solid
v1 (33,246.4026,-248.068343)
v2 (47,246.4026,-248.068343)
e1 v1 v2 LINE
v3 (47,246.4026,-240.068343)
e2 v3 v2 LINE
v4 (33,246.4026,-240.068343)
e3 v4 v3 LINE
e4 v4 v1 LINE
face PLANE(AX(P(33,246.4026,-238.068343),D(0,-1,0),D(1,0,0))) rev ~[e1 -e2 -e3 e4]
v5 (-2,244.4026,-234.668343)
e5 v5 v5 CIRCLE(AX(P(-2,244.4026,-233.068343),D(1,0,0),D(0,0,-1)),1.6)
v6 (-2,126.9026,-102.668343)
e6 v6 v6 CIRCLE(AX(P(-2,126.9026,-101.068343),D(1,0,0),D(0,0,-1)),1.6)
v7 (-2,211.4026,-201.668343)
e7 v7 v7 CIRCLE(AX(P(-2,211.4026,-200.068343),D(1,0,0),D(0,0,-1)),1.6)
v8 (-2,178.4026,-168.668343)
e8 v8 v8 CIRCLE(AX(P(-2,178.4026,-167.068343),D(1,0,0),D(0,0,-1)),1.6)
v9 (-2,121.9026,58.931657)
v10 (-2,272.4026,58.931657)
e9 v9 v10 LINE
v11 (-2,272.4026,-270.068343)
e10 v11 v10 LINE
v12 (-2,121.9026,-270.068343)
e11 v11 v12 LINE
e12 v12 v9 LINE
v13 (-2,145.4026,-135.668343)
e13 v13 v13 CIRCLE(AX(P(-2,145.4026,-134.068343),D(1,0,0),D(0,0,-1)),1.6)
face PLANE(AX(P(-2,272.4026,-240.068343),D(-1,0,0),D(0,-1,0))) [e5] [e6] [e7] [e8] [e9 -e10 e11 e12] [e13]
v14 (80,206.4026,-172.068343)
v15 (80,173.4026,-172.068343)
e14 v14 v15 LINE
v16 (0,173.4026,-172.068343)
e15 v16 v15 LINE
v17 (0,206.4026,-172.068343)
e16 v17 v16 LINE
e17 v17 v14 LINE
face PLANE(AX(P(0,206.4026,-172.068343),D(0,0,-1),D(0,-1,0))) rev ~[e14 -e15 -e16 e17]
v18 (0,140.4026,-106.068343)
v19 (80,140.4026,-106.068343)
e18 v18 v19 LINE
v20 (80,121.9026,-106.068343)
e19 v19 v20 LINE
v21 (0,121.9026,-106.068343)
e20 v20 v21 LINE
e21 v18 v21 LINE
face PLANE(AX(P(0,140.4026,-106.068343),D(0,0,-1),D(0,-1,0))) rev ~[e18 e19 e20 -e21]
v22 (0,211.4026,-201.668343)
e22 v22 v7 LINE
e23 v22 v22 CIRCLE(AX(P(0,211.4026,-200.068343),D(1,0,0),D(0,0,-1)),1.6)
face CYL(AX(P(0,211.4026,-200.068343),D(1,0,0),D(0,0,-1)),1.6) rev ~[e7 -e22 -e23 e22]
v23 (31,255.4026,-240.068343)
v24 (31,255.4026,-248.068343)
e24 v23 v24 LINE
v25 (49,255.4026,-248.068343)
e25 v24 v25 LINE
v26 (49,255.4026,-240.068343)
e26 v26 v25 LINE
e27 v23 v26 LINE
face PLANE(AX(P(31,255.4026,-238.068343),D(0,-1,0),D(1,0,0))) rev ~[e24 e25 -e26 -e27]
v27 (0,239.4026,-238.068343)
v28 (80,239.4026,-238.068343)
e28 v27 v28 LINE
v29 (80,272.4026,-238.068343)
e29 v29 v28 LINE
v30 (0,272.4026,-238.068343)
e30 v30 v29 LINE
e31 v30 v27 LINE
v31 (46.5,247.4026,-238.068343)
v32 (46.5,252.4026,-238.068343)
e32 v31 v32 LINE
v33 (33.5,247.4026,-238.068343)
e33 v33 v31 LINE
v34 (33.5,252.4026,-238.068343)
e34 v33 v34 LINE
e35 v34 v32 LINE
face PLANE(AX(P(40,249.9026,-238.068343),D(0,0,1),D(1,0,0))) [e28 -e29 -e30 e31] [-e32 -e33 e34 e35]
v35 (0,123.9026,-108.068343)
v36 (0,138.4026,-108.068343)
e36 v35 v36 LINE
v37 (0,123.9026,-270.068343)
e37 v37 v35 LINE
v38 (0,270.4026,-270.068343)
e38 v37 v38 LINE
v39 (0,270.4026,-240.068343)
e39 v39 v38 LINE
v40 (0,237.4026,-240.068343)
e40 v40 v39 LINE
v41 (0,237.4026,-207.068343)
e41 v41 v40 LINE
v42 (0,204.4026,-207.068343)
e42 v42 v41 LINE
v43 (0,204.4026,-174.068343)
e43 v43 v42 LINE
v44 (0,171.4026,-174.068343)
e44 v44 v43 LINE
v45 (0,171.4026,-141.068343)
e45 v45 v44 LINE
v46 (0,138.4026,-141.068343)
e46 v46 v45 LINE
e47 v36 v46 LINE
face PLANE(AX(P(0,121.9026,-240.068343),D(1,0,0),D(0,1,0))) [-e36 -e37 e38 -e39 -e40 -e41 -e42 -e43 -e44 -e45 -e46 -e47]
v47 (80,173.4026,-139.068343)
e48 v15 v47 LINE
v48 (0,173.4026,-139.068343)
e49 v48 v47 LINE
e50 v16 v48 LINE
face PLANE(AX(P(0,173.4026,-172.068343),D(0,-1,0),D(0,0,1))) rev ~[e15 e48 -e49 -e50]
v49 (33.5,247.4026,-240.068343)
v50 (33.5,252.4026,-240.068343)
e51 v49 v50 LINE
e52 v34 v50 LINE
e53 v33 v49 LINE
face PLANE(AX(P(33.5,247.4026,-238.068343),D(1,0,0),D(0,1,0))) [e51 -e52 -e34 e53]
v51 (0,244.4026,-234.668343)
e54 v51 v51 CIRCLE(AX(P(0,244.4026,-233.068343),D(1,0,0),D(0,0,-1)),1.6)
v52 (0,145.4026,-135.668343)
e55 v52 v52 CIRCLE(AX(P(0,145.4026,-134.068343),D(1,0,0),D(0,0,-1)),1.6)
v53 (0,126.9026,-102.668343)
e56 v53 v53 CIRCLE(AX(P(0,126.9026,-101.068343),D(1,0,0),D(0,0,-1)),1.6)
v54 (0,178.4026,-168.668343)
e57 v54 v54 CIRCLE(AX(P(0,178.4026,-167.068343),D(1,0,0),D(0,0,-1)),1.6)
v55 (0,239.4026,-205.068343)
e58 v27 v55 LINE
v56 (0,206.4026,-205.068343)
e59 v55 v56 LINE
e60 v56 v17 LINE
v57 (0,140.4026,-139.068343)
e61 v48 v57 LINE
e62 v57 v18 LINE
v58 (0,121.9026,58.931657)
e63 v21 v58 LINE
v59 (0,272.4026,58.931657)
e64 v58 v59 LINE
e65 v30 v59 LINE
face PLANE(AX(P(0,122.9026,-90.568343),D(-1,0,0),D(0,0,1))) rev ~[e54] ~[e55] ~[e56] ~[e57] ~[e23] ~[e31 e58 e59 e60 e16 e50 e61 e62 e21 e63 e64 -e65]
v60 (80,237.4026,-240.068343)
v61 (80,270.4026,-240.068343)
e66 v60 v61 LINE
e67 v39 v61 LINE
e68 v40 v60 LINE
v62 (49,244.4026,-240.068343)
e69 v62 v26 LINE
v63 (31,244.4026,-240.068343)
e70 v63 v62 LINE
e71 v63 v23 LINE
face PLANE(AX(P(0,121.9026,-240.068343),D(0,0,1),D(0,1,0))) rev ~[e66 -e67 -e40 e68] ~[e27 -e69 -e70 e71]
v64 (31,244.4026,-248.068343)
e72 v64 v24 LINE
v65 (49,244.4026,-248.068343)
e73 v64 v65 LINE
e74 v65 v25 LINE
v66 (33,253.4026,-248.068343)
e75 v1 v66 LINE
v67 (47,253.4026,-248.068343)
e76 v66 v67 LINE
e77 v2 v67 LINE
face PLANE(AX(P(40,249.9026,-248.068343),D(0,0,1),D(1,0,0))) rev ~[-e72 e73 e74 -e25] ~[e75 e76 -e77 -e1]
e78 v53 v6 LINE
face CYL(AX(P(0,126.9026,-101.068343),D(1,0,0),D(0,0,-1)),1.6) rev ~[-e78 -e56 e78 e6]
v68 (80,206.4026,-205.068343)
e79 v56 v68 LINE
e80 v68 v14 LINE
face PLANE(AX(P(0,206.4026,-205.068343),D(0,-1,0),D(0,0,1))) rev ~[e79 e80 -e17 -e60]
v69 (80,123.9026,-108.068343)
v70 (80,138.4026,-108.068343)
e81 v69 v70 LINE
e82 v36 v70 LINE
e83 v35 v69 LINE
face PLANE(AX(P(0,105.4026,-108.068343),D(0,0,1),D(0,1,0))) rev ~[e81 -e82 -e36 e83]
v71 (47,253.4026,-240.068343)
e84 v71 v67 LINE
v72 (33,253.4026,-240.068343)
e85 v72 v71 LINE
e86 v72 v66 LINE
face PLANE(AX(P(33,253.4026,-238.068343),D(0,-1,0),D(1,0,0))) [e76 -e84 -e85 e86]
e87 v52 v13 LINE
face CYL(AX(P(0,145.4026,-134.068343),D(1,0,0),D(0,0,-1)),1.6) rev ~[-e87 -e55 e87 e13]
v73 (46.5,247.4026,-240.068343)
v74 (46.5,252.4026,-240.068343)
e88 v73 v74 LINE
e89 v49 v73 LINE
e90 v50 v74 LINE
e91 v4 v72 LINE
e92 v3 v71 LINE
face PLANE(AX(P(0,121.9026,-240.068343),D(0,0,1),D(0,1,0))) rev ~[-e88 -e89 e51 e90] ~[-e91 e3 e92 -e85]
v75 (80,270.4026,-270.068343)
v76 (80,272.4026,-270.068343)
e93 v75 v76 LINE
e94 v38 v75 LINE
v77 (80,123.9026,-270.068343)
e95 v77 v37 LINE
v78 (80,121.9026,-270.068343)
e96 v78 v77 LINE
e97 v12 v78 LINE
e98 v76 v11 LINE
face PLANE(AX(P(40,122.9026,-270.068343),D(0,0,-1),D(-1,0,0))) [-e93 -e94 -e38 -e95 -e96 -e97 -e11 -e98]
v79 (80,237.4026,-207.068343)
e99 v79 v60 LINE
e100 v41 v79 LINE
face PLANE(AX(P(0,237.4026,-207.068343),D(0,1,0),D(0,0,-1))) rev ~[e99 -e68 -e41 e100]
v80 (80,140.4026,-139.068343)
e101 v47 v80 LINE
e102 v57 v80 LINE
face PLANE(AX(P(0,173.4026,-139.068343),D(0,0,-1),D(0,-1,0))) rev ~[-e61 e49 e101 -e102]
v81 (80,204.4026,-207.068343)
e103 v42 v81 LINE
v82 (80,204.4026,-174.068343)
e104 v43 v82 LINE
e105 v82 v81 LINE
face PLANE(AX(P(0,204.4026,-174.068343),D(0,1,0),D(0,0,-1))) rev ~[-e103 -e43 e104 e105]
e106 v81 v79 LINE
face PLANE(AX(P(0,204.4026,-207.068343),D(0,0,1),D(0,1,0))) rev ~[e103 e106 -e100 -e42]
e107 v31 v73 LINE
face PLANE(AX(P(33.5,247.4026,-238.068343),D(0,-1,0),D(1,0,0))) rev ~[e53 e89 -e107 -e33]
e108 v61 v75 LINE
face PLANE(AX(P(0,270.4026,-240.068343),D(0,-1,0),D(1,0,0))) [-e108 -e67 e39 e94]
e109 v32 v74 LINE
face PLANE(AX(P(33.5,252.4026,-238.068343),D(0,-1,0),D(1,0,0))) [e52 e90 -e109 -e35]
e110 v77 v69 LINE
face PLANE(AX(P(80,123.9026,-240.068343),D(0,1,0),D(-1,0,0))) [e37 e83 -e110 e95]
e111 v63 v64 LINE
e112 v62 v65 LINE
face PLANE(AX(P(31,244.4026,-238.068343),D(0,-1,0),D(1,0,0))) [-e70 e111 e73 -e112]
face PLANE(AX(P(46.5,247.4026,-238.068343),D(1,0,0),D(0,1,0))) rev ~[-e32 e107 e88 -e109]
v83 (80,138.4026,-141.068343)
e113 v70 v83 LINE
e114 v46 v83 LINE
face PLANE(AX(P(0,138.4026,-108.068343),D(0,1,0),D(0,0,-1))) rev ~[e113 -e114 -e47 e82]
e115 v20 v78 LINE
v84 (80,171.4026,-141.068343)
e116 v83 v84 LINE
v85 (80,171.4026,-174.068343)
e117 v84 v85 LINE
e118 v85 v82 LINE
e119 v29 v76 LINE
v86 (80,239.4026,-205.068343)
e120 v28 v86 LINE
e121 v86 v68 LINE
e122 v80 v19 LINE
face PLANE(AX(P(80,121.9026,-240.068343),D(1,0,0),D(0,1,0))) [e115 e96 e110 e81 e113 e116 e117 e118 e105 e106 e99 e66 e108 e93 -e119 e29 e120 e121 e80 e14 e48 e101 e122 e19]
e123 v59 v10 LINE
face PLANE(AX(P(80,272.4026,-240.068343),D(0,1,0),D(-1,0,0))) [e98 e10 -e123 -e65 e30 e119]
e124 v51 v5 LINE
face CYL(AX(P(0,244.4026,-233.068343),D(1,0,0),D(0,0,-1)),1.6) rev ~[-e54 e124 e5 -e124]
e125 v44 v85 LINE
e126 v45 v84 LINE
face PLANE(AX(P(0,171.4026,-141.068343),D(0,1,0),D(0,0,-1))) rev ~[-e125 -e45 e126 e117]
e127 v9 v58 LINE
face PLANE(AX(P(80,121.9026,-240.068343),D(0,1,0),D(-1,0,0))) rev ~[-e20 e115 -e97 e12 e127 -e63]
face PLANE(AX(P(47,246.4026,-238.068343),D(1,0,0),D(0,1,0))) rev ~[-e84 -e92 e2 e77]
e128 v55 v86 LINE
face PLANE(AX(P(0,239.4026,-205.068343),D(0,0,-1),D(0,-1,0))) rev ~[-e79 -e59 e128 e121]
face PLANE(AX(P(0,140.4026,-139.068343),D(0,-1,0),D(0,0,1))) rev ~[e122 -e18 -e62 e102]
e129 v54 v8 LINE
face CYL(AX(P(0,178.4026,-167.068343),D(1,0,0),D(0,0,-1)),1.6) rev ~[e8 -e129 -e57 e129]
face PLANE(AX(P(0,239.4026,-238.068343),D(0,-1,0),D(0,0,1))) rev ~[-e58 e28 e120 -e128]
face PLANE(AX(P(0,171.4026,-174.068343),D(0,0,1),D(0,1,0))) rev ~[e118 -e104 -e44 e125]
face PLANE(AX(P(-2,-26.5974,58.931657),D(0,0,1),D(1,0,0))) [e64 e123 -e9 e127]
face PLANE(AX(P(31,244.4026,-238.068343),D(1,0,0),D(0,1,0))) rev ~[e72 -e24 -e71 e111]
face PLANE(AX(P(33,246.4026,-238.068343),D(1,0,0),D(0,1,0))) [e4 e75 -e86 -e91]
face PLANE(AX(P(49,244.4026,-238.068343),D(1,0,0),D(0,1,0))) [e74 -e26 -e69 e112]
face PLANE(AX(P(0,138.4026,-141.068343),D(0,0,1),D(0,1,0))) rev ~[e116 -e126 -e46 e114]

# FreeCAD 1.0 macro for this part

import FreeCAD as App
import Part
import Sketcher
from FreeCAD import Vector

doc = App.newDocument("Part")
body = doc.addObject("PartDesign::Body", "Body")

# Sketch on YZ plane
sketch1 = body.newObject("Sketcher::SketchObject", "Sketch")
sketch1.AttachmentSupport = (doc.getObject("YZ_Plane"), [""])
sketch1.MapMode = "FlatFace"
sketch1.addGeometry(Part.LineSegment(Vector(-26.6, 23.9, 0), Vector(6.4, 23.9, 0)), False)
sketch1.addGeometry(Part.LineSegment(Vector(6.4, 23.9, 0), Vector(6.4, -9.1, 0)), False)
sketch1.addGeometry(Part.LineSegment(Vector(6.4, -9.1, 0), Vector(39.4, -9.1, 0)), False)
sketch1.addGeometry(Part.LineSegment(Vector(39.4, -9.1, 0), Vector(39.4, -42.1, 0)), False)
sketch1.addGeometry(Part.LineSegment(Vector(39.4, -42.1, 0), Vector(72.4, -42.1, 0)), False)
sketch1.addGeometry(Part.LineSegment(Vector(72.4, -42.1, 0), Vector(72.4, -75.1, 0)), False)
sketch1.addGeometry(Part.LineSegment(Vector(72.4, -75.1, 0), Vector(105.4, -75.1, 0)), False)
sketch1.addGeometry(Part.LineSegment(Vector(105.4, -75.1, 0), Vector(105.4, -108.1, 0)), False)
sketch1.addGeometry(Part.LineSegment(Vector(105.4, -108.1, 0), Vector(138.4, -108.1, 0)), False)
sketch1.addGeometry(Part.LineSegment(Vector(138.4, -108.1, 0), Vector(138.4, -141.1, 0)), False)
sketch1.addGeometry(Part.LineSegment(Vector(138.4, -141.1, 0), Vector(171.4, -141.1, 0)), False)
sketch1.addGeometry(Part.LineSegment(Vector(171.4, -141.1, 0), Vector(171.4, -174.1, 0)), False)
sketch1.addGeometry(Part.LineSegment(Vector(171.4, -174.1, 0), Vector(204.4, -174.1, 0)), False)
sketch1.addGeometry(Part.LineSegment(Vector(204.4, -174.1, 0), Vector(204.4, -207.1, 0)), False)
sketch1.addGeometry(Part.LineSegment(Vector(204.4, -207.1, 0), Vector(237.4, -207.1, 0)), False)
sketch1.addGeometry(Part.LineSegment(Vector(237.4, -207.1, 0), Vector(237.4, -240.1, 0)), False)
sketch1.addGeometry(Part.LineSegment(Vector(237.4, -240.1, 0), Vector(272.4, -240.1, 0)), False)
sketch1.addGeometry(Part.LineSegment(Vector(272.4, -240.1, 0), Vector(272.4, -238.1, 0)), False)
sketch1.addGeometry(Part.LineSegment(Vector(272.4, -238.1, 0), Vector(239.4, -238.1, 0)), False)
sketch1.addGeometry(Part.LineSegment(Vector(239.4, -238.1, 0), Vector(239.4, -205.1, 0)), False)
sketch1.addGeometry(Part.LineSegment(Vector(239.4, -205.1, 0), Vector(206.4, -205.1, 0)), False)
sketch1.addGeometry(Part.LineSegment(Vector(206.4, -205.1, 0), Vector(206.4, -172.1, 0)), False)
sketch1.addGeometry(Part.LineSegment(Vector(206.4, -172.1, 0), Vector(173.4, -172.1, 0)), False)
sketch1.addGeometry(Part.LineSegment(Vector(173.4, -172.1, 0), Vector(173.4, -139.1, 0)), False)
sketch1.addGeometry(Part.LineSegment(Vector(173.4, -139.1, 0), Vector(140.4, -139.1, 0)), False)
sketch1.addGeometry(Part.LineSegment(Vector(140.4, -139.1, 0), Vector(140.4, -106.1, 0)), False)
sketch1.addGeometry(Part.LineSegment(Vector(140.4, -106.1, 0), Vector(107.4, -106.1, 0)), False)
sketch1.addGeometry(Part.LineSegment(Vector(107.4, -106.1, 0), Vector(107.4, -73.1, 0)), False)
sketch1.addGeometry(Part.LineSegment(Vector(107.4, -73.1, 0), Vector(74.4, -73.1, 0)), False)
sketch1.addGeometry(Part.LineSegment(Vector(74.4, -73.1, 0), Vector(74.4, -40.1, 0)), False)
sketch1.addGeometry(Part.LineSegment(Vector(74.4, -40.1, 0), Vector(41.4, -40.1, 0)), False)
sketch1.addGeometry(Part.LineSegment(Vector(41.4, -40.1, 0), Vector(41.4, -7.1, 0)), False)
sketch1.addGeometry(Part.LineSegment(Vector(41.4, -7.1, 0), Vector(8.4, -7.1, 0)), False)
sketch1.addGeometry(Part.LineSegment(Vector(8.4, -7.1, 0), Vector(8.4, 25.9, 0)), False)
sketch1.addGeometry(Part.LineSegment(Vector(8.4, 25.9, 0), Vector(-24.6, 25.9, 0)), False)
sketch1.addGeometry(Part.LineSegment(Vector(-24.6, 25.9, 0), Vector(-24.6, 58.9, 0)), False)
sketch1.addGeometry(Part.LineSegment(Vector(-24.6, 58.9, 0), Vector(-26.6, 58.9, 0)), False)
sketch1.addGeometry(Part.LineSegment(Vector(-26.6, 58.9, 0), Vector(-26.6, 23.9, 0)), False)
sketch1.addConstraint(Sketcher.Constraint("Coincident", 0, 2, 1, 1))
sketch1.addConstraint(Sketcher.Constraint("Coincident", 1, 2, 2, 1))
sketch1.addConstraint(Sketcher.Constraint("Coincident", 2, 2, 3, 1))
sketch1.addConstraint(Sketcher.Constraint("Coincident", 3, 2, 4, 1))
sketch1.addConstraint(Sketcher.Constraint("Coincident", 4, 2, 5, 1))
sketch1.addConstraint(Sketcher.Constraint("Coincident", 5, 2, 6, 1))
sketch1.addConstraint(Sketcher.Constraint("Coincident", 6, 2, 7, 1))
sketch1.addConstraint(Sketcher.Constraint("Coincident", 7, 2, 8, 1))
sketch1.addConstraint(Sketcher.Constraint("Coincident", 8, 2, 9, 1))
sketch1.addConstraint(Sketcher.Constraint("Coincident", 9, 2, 10, 1))
sketch1.addConstraint(Sketcher.Constraint("Coincident", 10, 2, 11, 1))
sketch1.addConstraint(Sketcher.Constraint("Coincident", 11, 2, 12, 1))
sketch1.addConstraint(Sketcher.Constraint("Coincident", 12, 2, 13, 1))
sketch1.addConstraint(Sketcher.Constraint("Coincident", 13, 2, 14, 1))
sketch1.addConstraint(Sketcher.Constraint("Coincident", 14, 2, 15, 1))
sketch1.addConstraint(Sketcher.Constraint("Coincident", 15, 2, 16, 1))
sketch1.addConstraint(Sketcher.Constraint("Coincident", 16, 2, 17, 1))
sketch1.addConstraint(Sketcher.Constraint("Coincident", 17, 2, 18, 1))
sketch1.addConstraint(Sketcher.Constraint("Coincident", 18, 2, 19, 1))
sketch1.addConstraint(Sketcher.Constraint("Coincident", 19, 2, 20, 1))
sketch1.addConstraint(Sketcher.Constraint("Coincident", 20, 2, 21, 1))
sketch1.addConstraint(Sketcher.Constraint("Coincident", 21, 2, 22, 1))
sketch1.addConstraint(Sketcher.Constraint("Coincident", 22, 2, 23, 1))
sketch1.addConstraint(Sketcher.Constraint("Coincident", 23, 2, 24, 1))
sketch1.addConstraint(Sketcher.Constraint("Coincident", 24, 2, 25, 1))
sketch1.addConstraint(Sketcher.Constraint("Coincident", 25, 2, 26, 1))
sketch1.addConstraint(Sketcher.Constraint("Coincident", 26, 2, 27, 1))
sketch1.addConstraint(Sketcher.Constraint("Coincident", 27, 2, 28, 1))
sketch1.addConstraint(Sketcher.Constraint("Coincident", 28, 2, 29, 1))
sketch1.addConstraint(Sketcher.Constraint("Coincident", 29, 2, 30, 1))
sketch1.addConstraint(Sketcher.Constraint("Coincident", 30, 2, 31, 1))
sketch1.addConstraint(Sketcher.Constraint("Coincident", 31, 2, 32, 1))
sketch1.addConstraint(Sketcher.Constraint("Coincident", 32, 2, 33, 1))
sketch1.addConstraint(Sketcher.Constraint("Coincident", 33, 2, 34, 1))
sketch1.addConstraint(Sketcher.Constraint("Coincident", 34, 2, 35, 1))
sketch1.addConstraint(Sketcher.Constraint("Coincident", 35, 2, 36, 1))
sketch1.addConstraint(Sketcher.Constraint("Coincident", 36, 2, 37, 1))
sketch1.addConstraint(Sketcher.Constraint("Coincident", 37, 2, 0, 1))
sketch1.addConstraint(Sketcher.Constraint("Horizontal", 0))
sketch1.addConstraint(Sketcher.Constraint("Vertical", 1))
sketch1.addConstraint(Sketcher.Constraint("Horizontal", 2))
sketch1.addConstraint(Sketcher.Constraint("Vertical", 3))
sketch1.addConstraint(Sketcher.Constraint("Horizontal", 4))
sketch1.addConstraint(Sketcher.Constraint("Vertical", 5))
sketch1.addConstraint(Sketcher.Constraint("Horizontal", 6))
sketch1.addConstraint(Sketcher.Constraint("Vertical", 7))
sketch1.addConstraint(Sketcher.Constraint("Horizontal", 8))
sketch1.addConstraint(Sketcher.Constraint("Vertical", 9))
sketch1.addConstraint(Sketcher.Constraint("Horizontal", 10))
sketch1.addConstraint(Sketcher.Constraint("Vertical", 11))
sketch1.addConstraint(Sketcher.Constraint("Horizontal", 12))
sketch1.addConstraint(Sketcher.Constraint("Vertical", 13))
sketch1.addConstraint(Sketcher.Constraint("Horizontal", 14))
sketch1.addConstraint(Sketcher.Constraint("Vertical", 15))
sketch1.addConstraint(Sketcher.Constraint("Horizontal", 16))
sketch1.addConstraint(Sketcher.Constraint("Vertical", 17))
sketch1.addConstraint(Sketcher.Constraint("Horizontal", 18))
sketch1.addConstraint(Sketcher.Constraint("Vertical", 19))
sketch1.addConstraint(Sketcher.Constraint("Horizontal", 20))
sketch1.addConstraint(Sketcher.Constraint("Vertical", 21))
sketch1.addConstraint(Sketcher.Constraint("Horizontal", 22))
sketch1.addConstraint(Sketcher.Constraint("Vertical", 23))
sketch1.addConstraint(Sketcher.Constraint("Horizontal", 24))
sketch1.addConstraint(Sketcher.Constraint("Vertical", 25))
sketch1.addConstraint(Sketcher.Constraint("Horizontal", 26))
sketch1.addConstraint(Sketcher.Constraint("Vertical", 27))
sketch1.addConstraint(Sketcher.Constraint("Horizontal", 28))
sketch1.addConstraint(Sketcher.Constraint("Vertical", 29))
sketch1.addConstraint(Sketcher.Constraint("Horizontal", 30))
sketch1.addConstraint(Sketcher.Constraint("Vertical", 31))
sketch1.addConstraint(Sketcher.Constraint("Horizontal", 32))
sketch1.addConstraint(Sketcher.Constraint("Vertical", 33))
sketch1.addConstraint(Sketcher.Constraint("Horizontal", 34))
sketch1.addConstraint(Sketcher.Constraint("Vertical", 35))
sketch1.addConstraint(Sketcher.Constraint("Horizontal", 36))
sketch1.addConstraint(Sketcher.Constraint("Vertical", 37))
sketch1.addConstraint(Sketcher.Constraint("Equal", 0, 2))
sketch1.addConstraint(Sketcher.Constraint("Equal", 2, 4))
sketch1.addConstraint(Sketcher.Constraint("Equal", 4, 6))
sketch1.addConstraint(Sketcher.Constraint("Equal", 6, 8))
sketch1.addConstraint(Sketcher.Constraint("Equal", 8, 10))
sketch1.addConstraint(Sketcher.Constraint("Equal", 10, 12))
sketch1.addConstraint(Sketcher.Constraint("Equal", 12, 14))
sketch1.addConstraint(Sketcher.Constraint("Equal", 14, 18))
sketch1.addConstraint(Sketcher.Constraint("Equal", 18, 20))
sketch1.addConstraint(Sketcher.Constraint("Equal", 20, 22))
sketch1.addConstraint(Sketcher.Constraint("Equal", 22, 24))
sketch1.addConstraint(Sketcher.Constraint("Equal", 24, 26))
sketch1.addConstraint(Sketcher.Constraint("Equal", 26, 28))
sketch1.addConstraint(Sketcher.Constraint("Equal", 28, 30))
sketch1.addConstraint(Sketcher.Constraint("Equal", 30, 32))
sketch1.addConstraint(Sketcher.Constraint("Equal", 32, 34))
sketch1.addConstraint(Sketcher.Constraint("Equal", 34, 1))
sketch1.addConstraint(Sketcher.Constraint("Equal", 1, 3))
sketch1.addConstraint(Sketcher.Constraint("Equal", 3, 5))
sketch1.addConstraint(Sketcher.Constraint("Equal", 5, 7))
sketch1.addConstraint(Sketcher.Constraint("Equal", 7, 9))
sketch1.addConstraint(Sketcher.Constraint("Equal", 9, 11))
sketch1.addConstraint(Sketcher.Constraint("Equal", 11, 13))
sketch1.addConstraint(Sketcher.Constraint("Equal", 13, 15))
sketch1.addConstraint(Sketcher.Constraint("Equal", 36, 17))
sketch1.addConstraint(Sketcher.Constraint("Equal", 15, 19))
sketch1.addConstraint(Sketcher.Constraint("Equal", 19, 21))
sketch1.addConstraint(Sketcher.Constraint("Equal", 21, 23))
sketch1.addConstraint(Sketcher.Constraint("Equal", 23, 25))
sketch1.addConstraint(Sketcher.Constraint("Equal", 25, 27))
sketch1.addConstraint(Sketcher.Constraint("Equal", 27, 29))
sketch1.addConstraint(Sketcher.Constraint("Equal", 29, 31))
sketch1.addConstraint(Sketcher.Constraint("Equal", 31, 33))
sketch1.addConstraint(Sketcher.Constraint("Equal", 33, 35))
sketch1.addConstraint(Sketcher.Constraint("DistanceX", 0, 1, 0, 2, 33.0))
sketch1.addConstraint(Sketcher.Constraint("DistanceX", 16, 1, 16, 2, 35.0))
sketch1.addConstraint(Sketcher.Constraint("DistanceX", -1, 1, 0, 2, 6.4026))
sketch1.addConstraint(Sketcher.Constraint("DistanceY", -1, 1, 0, 2, 23.931657))
pad1 = body.newObject("PartDesign::Pad", "Pad")
pad1.Profile = sketch1
pad1.Length = 80

# Sketch on YZ plane
sketch2 = body.newObject("Sketcher::SketchObject", "Sketch001")
sketch2.AttachmentSupport = (doc.getObject("YZ_Plane"), [""])
sketch2.MapMode = "FlatFace"
sketch2.addGeometry(Part.LineSegment(Vector(272, -240, 0), Vector(-27, -240, 0)), False)
sketch2.addGeometry(Part.LineSegment(Vector(-27, -240, 0), Vector(-27, 59, 0)), False)
sketch2.addGeometry(Part.LineSegment(Vector(-27, 59, 0), Vector(272, 59, 0)), False)
sketch2.addGeometry(Part.LineSegment(Vector(272, 59, 0), Vector(272, -240, 0)), False)
sketch2.addConstraint(Sketcher.Constraint("Coincident", 0, 2, 1, 1))
sketch2.addConstraint(Sketcher.Constraint("Coincident", 1, 2, 2, 1))
sketch2.addConstraint(Sketcher.Constraint("Coincident", 2, 2, 3, 1))
sketch2.addConstraint(Sketcher.Constraint("Coincident", 3, 2, 0, 1))
sketch2.addConstraint(Sketcher.Constraint("Horizontal", 0))
sketch2.addConstraint(Sketcher.Constraint("Vertical", 1))
sketch2.addConstraint(Sketcher.Constraint("Horizontal", 2))
sketch2.addConstraint(Sketcher.Constraint("Vertical", 3))
sketch2.addConstraint(Sketcher.Constraint("Equal", 2, 1))
sketch2.addConstraint(Sketcher.Constraint("DistanceX", 0, 2, 0, 1, 299.0))
sketch2.addConstraint(Sketcher.Constraint("DistanceX", 0, 2, -1, 1, 26.5974))
sketch2.addConstraint(Sketcher.Constraint("DistanceY", 0, 2, -1, 1, 240.068343))
pad2 = body.newObject("PartDesign::Pad", "Pad001")
pad2.Profile = sketch2
pad2.Length = 2
pad2.Reversed = True

# Sketch on XZ plane
sketch3 = body.newObject("Sketcher::SketchObject", "Sketch002")
sketch3.AttachmentSupport = (doc.getObject("XZ_Plane"), [""])
sketch3.MapMode = "FlatFace"
sketch3.AttachmentOffset = App.Placement(Vector(0, 0, 26.5974), App.Rotation())
sketch3.addGeometry(Part.LineSegment(Vector(-2, 59, 0), Vector(-2, -240, 0)), False)
sketch3.addGeometry(Part.LineSegment(Vector(-2, -240, 0), Vector(80, -240, 0)), False)
sketch3.addGeometry(Part.LineSegment(Vector(80, -240, 0), Vector(80, 59, 0)), False)
sketch3.addGeometry(Part.LineSegment(Vector(80, 59, 0), Vector(-2, 59, 0)), False)
sketch3.addConstraint(Sketcher.Constraint("Coincident", 0, 2, 1, 1))
sketch3.addConstraint(Sketcher.Constraint("Coincident", 1, 2, 2, 1))
sketch3.addConstraint(Sketcher.Constraint("Coincident", 2, 2, 3, 1))
sketch3.addConstraint(Sketcher.Constraint("Coincident", 3, 2, 0, 1))
sketch3.addConstraint(Sketcher.Constraint("Vertical", 0))
sketch3.addConstraint(Sketcher.Constraint("Horizontal", 1))
sketch3.addConstraint(Sketcher.Constraint("Vertical", 2))
sketch3.addConstraint(Sketcher.Constraint("Horizontal", 3))
sketch3.addConstraint(Sketcher.Constraint("DistanceX", 1, 1, 1, 2, 82.0))
sketch3.addConstraint(Sketcher.Constraint("DistanceY", 0, 2, 0, 1, 299.0))
sketch3.addConstraint(Sketcher.Constraint("DistanceX", 0, 2, -1, 1, 2.0))
sketch3.addConstraint(Sketcher.Constraint("DistanceY", 0, 2, -1, 1, 240.068343))
pad3 = body.newObject("PartDesign::Pad", "Pad002")
pad3.Profile = sketch3
pad3.Length = 2

# Sketch on YZ plane
sketch4 = body.newObject("Sketcher::SketchObject", "Sketch003")
sketch4.AttachmentSupport = (doc.getObject("YZ_Plane"), [""])
sketch4.MapMode = "FlatFace"
sketch4.AttachmentOffset = App.Placement(Vector(0, 0, -2), App.Rotation())
sketch4.addGeometry(Part.LineSegment(Vector(122, -240, 0), Vector(-29, -240, 0)), False)
sketch4.addGeometry(Part.LineSegment(Vector(-29, -240, 0), Vector(-29, 59, 0)), False)
sketch4.addGeometry(Part.LineSegment(Vector(-29, 59, 0), Vector(122, 59, 0)), False)
sketch4.addGeometry(Part.LineSegment(Vector(122, 59, 0), Vector(122, -240, 0)), False)
sketch4.addConstraint(Sketcher.Constraint("Coincident", 0, 2, 1, 1))
sketch4.addConstraint(Sketcher.Constraint("Coincident", 1, 2, 2, 1))
sketch4.addConstraint(Sketcher.Constraint("Coincident", 2, 2, 3, 1))
sketch4.addConstraint(Sketcher.Constraint("Coincident", 3, 2, 0, 1))
sketch4.addConstraint(Sketcher.Constraint("Horizontal", 0))
sketch4.addConstraint(Sketcher.Constraint("Vertical", 1))
sketch4.addConstraint(Sketcher.Constraint("Horizontal", 2))
sketch4.addConstraint(Sketcher.Constraint("Vertical", 3))
sketch4.addConstraint(Sketcher.Constraint("DistanceY", 1, 1, 1, 2, 299.0))
sketch4.addConstraint(Sketcher.Constraint("DistanceX", 0, 2, 0, 1, 150.5))
sketch4.addConstraint(Sketcher.Constraint("DistanceX", 0, 2, -1, 1, 28.5974))
sketch4.addConstraint(Sketcher.Constraint("DistanceY", 0, 2, -1, 1, 240.068343))
pocket1 = body.newObject("PartDesign::Pocket", "Pocket")
pocket1.Profile = sketch4
pocket1.Length = 82
pocket1.Reversed = True

# Sketch on YZ plane
sketch5 = body.newObject("Sketcher::SketchObject", "Sketch004")
sketch5.AttachmentSupport = (doc.getObject("YZ_Plane"), [""])
sketch5.MapMode = "FlatFace"
sketch5.addGeometry(Part.LineSegment(Vector(123.9, -108.1, 0), Vector(121.9, -108.1, 0)), False)
sketch5.addGeometry(Part.LineSegment(Vector(121.9, -108.1, 0), Vector(121.9, -240.1, 0)), False)
sketch5.addGeometry(Part.LineSegment(Vector(121.9, -240.1, 0), Vector(123.9, -240.1, 0)), False)
sketch5.addGeometry(Part.LineSegment(Vector(123.9, -240.1, 0), Vector(123.9, -108.1, 0)), False)
sketch5.addConstraint(Sketcher.Constraint("Coincident", 0, 2, 1, 1))
sketch5.addConstraint(Sketcher.Constraint("Coincident", 1, 2, 2, 1))
sketch5.addConstraint(Sketcher.Constraint("Coincident", 2, 2, 3, 1))
sketch5.addConstraint(Sketcher.Constraint("Coincident", 3, 2, 0, 1))
sketch5.addConstraint(Sketcher.Constraint("Horizontal", 0))
sketch5.addConstraint(Sketcher.Constraint("Vertical", 1))
sketch5.addConstraint(Sketcher.Constraint("Horizontal", 2))
sketch5.addConstraint(Sketcher.Constraint("Vertical", 3))
sketch5.addConstraint(Sketcher.Constraint("DistanceX", 0, 2, 0, 1, 2.0))
sketch5.addConstraint(Sketcher.Constraint("DistanceY", 1, 2, 1, 1, 132.0))
sketch5.addConstraint(Sketcher.Constraint("DistanceX", -1, 1, 0, 2, 121.9026))
sketch5.addConstraint(Sketcher.Constraint("DistanceY", 0, 2, -1, 1, 108.068343))
pad4 = body.newObject("PartDesign::Pad", "Pad003")
pad4.Profile = sketch5
pad4.Length = 80

# Sketch on YZ plane
sketch6 = body.newObject("Sketcher::SketchObject", "Sketch005")
sketch6.AttachmentSupport = (doc.getObject("YZ_Plane"), [""])
sketch6.MapMode = "FlatFace"
sketch6.addGeometry(Part.Circle(Vector(126.9, -101.1, 0), Vector(0, 0, 1), 1.6), False)
sketch6.addGeometry(Part.Circle(Vector(145.4, -134.1, 0), Vector(0, 0, 1), 1.6), False)
sketch6.addGeometry(Part.Circle(Vector(178.4, -167.1, 0), Vector(0, 0, 1), 1.6), False)
sketch6.addGeometry(Part.Circle(Vector(211.4, -200.1, 0), Vector(0, 0, 1), 1.6), False)
sketch6.addGeometry(Part.Circle(Vector(244.4, -233.1, 0), Vector(0, 0, 1), 1.6), False)
sketch6.addConstraint(Sketcher.Constraint("Equal", 0, 1))
sketch6.addConstraint(Sketcher.Constraint("Equal", 1, 2))
sketch6.addConstraint(Sketcher.Constraint("Equal", 2, 3))
sketch6.addConstraint(Sketcher.Constraint("Equal", 3, 4))
sketch6.addConstraint(Sketcher.Constraint("Diameter", 0, 3.2))
sketch6.addConstraint(Sketcher.Constraint("DistanceY", 1, 3, 0, 3, 33.0))
sketch6.addConstraint(Sketcher.Constraint("DistanceX", 1, 3, 2, 3, 33.0))
sketch6.addConstraint(Sketcher.Constraint("DistanceY", 2, 3, 1, 3, 33.0))
sketch6.addConstraint(Sketcher.Constraint("DistanceX", 2, 3, 3, 3, 33.0))
sketch6.addConstraint(Sketcher.Constraint("DistanceY", 3, 3, 2, 3, 33.0))
sketch6.addConstraint(Sketcher.Constraint("DistanceX", 3, 3, 4, 3, 33.0))
sketch6.addConstraint(Sketcher.Constraint("DistanceY", 4, 3, 3, 3, 33.0))
sketch6.addConstraint(Sketcher.Constraint("DistanceX", 0, 3, 1, 3, 18.5))
sketch6.addConstraint(Sketcher.Constraint("DistanceX", -1, 1, 0, 3, 126.9026))
sketch6.addConstraint(Sketcher.Constraint("DistanceY", 0, 3, -1, 1, 101.068343))
pocket2 = body.newObject("PartDesign::Pocket", "Pocket001")
pocket2.Profile = sketch6
pocket2.Length = 2

# Sketch on XY plane
sketch7 = body.newObject("Sketcher::SketchObject", "Sketch006")
sketch7.AttachmentSupport = (doc.getObject("XY_Plane"), [""])
sketch7.MapMode = "FlatFace"
sketch7.AttachmentOffset = App.Placement(Vector(0, 0, -238.068343), App.Rotation())
sketch7.addGeometry(Part.LineSegment(Vector(34, 252, 0), Vector(34, 247, 0)), False)
sketch7.addGeometry(Part.LineSegment(Vector(34, 247, 0), Vector(46, 247, 0)), False)
sketch7.addGeometry(Part.LineSegment(Vector(46, 247, 0), Vector(46, 252, 0)), False)
sketch7.addGeometry(Part.LineSegment(Vector(46, 252, 0), Vector(34, 252, 0)), False)
sketch7.addConstraint(Sketcher.Constraint("Coincident", 0, 2, 1, 1))
sketch7.addConstraint(Sketcher.Constraint("Coincident", 1, 2, 2, 1))
sketch7.addConstraint(Sketcher.Constraint("Coincident", 2, 2, 3, 1))
sketch7.addConstraint(Sketcher.Constraint("Coincident", 3, 2, 0, 1))
sketch7.addConstraint(Sketcher.Constraint("Vertical", 0))
sketch7.addConstraint(Sketcher.Constraint("Horizontal", 1))
sketch7.addConstraint(Sketcher.Constraint("Vertical", 2))
sketch7.addConstraint(Sketcher.Constraint("Horizontal", 3))
sketch7.addConstraint(Sketcher.Constraint("DistanceX", 1, 1, 1, 2, 13.0))
sketch7.addConstraint(Sketcher.Constraint("DistanceY", 0, 2, 0, 1, 5.0))
sketch7.addConstraint(Sketcher.Constraint("DistanceX", -1, 1, 0, 2, 33.5))
sketch7.addConstraint(Sketcher.Constraint("DistanceY", -1, 1, 0, 2, 247.4026))
pocket3 = body.newObject("PartDesign::Pocket", "Pocket002")
pocket3.Profile = sketch7
pocket3.Length = 2

# Sketch on XY plane
sketch8 = body.newObject("Sketcher::SketchObject", "Sketch007")
sketch8.AttachmentSupport = (doc.getObject("XY_Plane"), [""])
sketch8.MapMode = "FlatFace"
sketch8.AttachmentOffset = App.Placement(Vector(0, 0, -238.068343), App.Rotation())
sketch8.addGeometry(Part.LineSegment(Vector(31, 255, 0), Vector(31, 244, 0)), False)
sketch8.addGeometry(Part.LineSegment(Vector(31, 244, 0), Vector(49, 244, 0)), False)
sketch8.addGeometry(Part.LineSegment(Vector(49, 244, 0), Vector(49, 255, 0)), False)
sketch8.addGeometry(Part.LineSegment(Vector(49, 255, 0), Vector(31, 255, 0)), False)
sketch8.addGeometry(Part.LineSegment(Vector(47, 246, 0), Vector(33, 246, 0)), False)
sketch8.addGeometry(Part.LineSegment(Vector(33, 246, 0), Vector(33, 253, 0)), False)
sketch8.addGeometry(Part.LineSegment(Vector(33, 253, 0), Vector(47, 253, 0)), False)
sketch8.addGeometry(Part.LineSegment(Vector(47, 253, 0), Vector(47, 246, 0)), False)
sketch8.addConstraint(Sketcher.Constraint("Coincident", 0, 2, 1, 1))
sketch8.addConstraint(Sketcher.Constraint("Coincident", 1, 2, 2, 1))
sketch8.addConstraint(Sketcher.Constraint("Coincident", 2, 2, 3, 1))
sketch8.addConstraint(Sketcher.Constraint("Coincident", 3, 2, 0, 1))
sketch8.addConstraint(Sketcher.Constraint("Coincident", 4, 2, 5, 1))
sketch8.addConstraint(Sketcher.Constraint("Coincident", 5, 2, 6, 1))
sketch8.addConstraint(Sketcher.Constraint("Coincident", 6, 2, 7, 1))
sketch8.addConstraint(Sketcher.Constraint("Coincident", 7, 2, 4, 1))
sketch8.addConstraint(Sketcher.Constraint("Vertical", 0))
sketch8.addConstraint(Sketcher.Constraint("Horizontal", 1))
sketch8.addConstraint(Sketcher.Constraint("Vertical", 2))
sketch8.addConstraint(Sketcher.Constraint("Horizontal", 3))
sketch8.addConstraint(Sketcher.Constraint("Horizontal", 4))
sketch8.addConstraint(Sketcher.Constraint("Vertical", 5))
sketch8.addConstraint(Sketcher.Constraint("Horizontal", 6))
sketch8.addConstraint(Sketcher.Constraint("Vertical", 7))
sketch8.addConstraint(Sketcher.Constraint("DistanceX", 1, 1, 1, 2, 18.0))
sketch8.addConstraint(Sketcher.Constraint("DistanceX", 4, 2, 4, 1, 14.0))
sketch8.addConstraint(Sketcher.Constraint("DistanceY", 0, 2, 0, 1, 11.0))
sketch8.addConstraint(Sketcher.Constraint("DistanceY", 5, 1, 5, 2, 7.0))
sketch8.addConstraint(Sketcher.Constraint("DistanceX", -1, 1, 0, 2, 31.0))
sketch8.addConstraint(Sketcher.Constraint("DistanceX", -1, 1, 4, 2, 33.0))
sketch8.addConstraint(Sketcher.Constraint("DistanceY", 0, 2, 4, 2, 2.0))
sketch8.addConstraint(Sketcher.Constraint("DistanceY", -1, 1, 0, 2, 244.4026))
pad5 = body.newObject("PartDesign::Pad", "Pad004")
pad5.Profile = sketch8
pad5.Length = 10
pad5.Reversed = True

# Sketch on XY plane
sketch9 = body.newObject("Sketcher::SketchObject", "Sketch008")
sketch9.AttachmentSupport = (doc.getObject("XY_Plane"), [""])
sketch9.MapMode = "FlatFace"
sketch9.AttachmentOffset = App.Placement(Vector(0, 0, -240.068343), App.Rotation())
sketch9.addGeometry(Part.LineSegment(Vector(-2, 272.4, 0), Vector(80, 272.4, 0)), False)
sketch9.addGeometry(Part.LineSegment(Vector(80, 272.4, 0), Vector(80, 270.4, 0)), False)
sketch9.addGeometry(Part.LineSegment(Vector(80, 270.4, 0), Vector(0, 270.4, 0)), False)
sketch9.addGeometry(Part.LineSegment(Vector(0, 270.4, 0), Vector(0, 121.9, 0)), False)
sketch9.addGeometry(Part.LineSegment(Vector(0, 121.9, 0), Vector(-2, 121.9, 0)), False)
sketch9.addGeometry(Part.LineSegment(Vector(-2, 121.9, 0), Vector(-2, 272.4, 0)), False)
sketch9.addConstraint(Sketcher.Constraint("Coincident", 0, 2, 1, 1))
sketch9.addConstraint(Sketcher.Constraint("Coincident", 1, 2, 2, 1))
sketch9.addConstraint(Sketcher.Constraint("Coincident", 2, 2, 3, 1))
sketch9.addConstraint(Sketcher.Constraint("Coincident", 3, 2, 4, 1))
sketch9.addConstraint(Sketcher.Constraint("Coincident", 4, 2, 5, 1))
sketch9.addConstraint(Sketcher.Constraint("Coincident", 5, 2, 0, 1))
sketch9.addConstraint(Sketcher.Constraint("Horizontal", 0))
sketch9.addConstraint(Sketcher.Constraint("Vertical", 1))
sketch9.addConstraint(Sketcher.Constraint("Horizontal", 2))
sketch9.addConstraint(Sketcher.Constraint("Vertical", 3))
sketch9.addConstraint(Sketcher.Constraint("Horizontal", 4))
sketch9.addConstraint(Sketcher.Constraint("Vertical", 5))
sketch9.addConstraint(Sketcher.Constraint("PointOnObject", 2, 2, -2))
sketch9.addConstraint(Sketcher.Constraint("Equal", 4, 1))
sketch9.addConstraint(Sketcher.Constraint("DistanceX", 0, 1, 0, 2, 82.0))
sketch9.addConstraint(Sketcher.Constraint("DistanceX", 2, 2, 2, 1, 80.0))
sketch9.addConstraint(Sketcher.Constraint("DistanceY", 3, 2, 3, 1, 148.5))
sketch9.addConstraint(Sketcher.Constraint("DistanceY", -1, 1, 0, 2, 272.4026))
pad6 = body.newObject("PartDesign::Pad", "Pad005")
pad6.Profile = sketch9
pad6.Length = 30
pad6.Reversed = True

# Sketch on XY plane
sketch10 = body.newObject("Sketcher::SketchObject", "Sketch009")
sketch10.AttachmentSupport = (doc.getObject("XY_Plane"), [""])
sketch10.MapMode = "FlatFace"
sketch10.AttachmentOffset = App.Placement(Vector(0, 0, -240.068343), App.Rotation())
sketch10.addGeometry(Part.LineSegment(Vector(80, 123.9, 0), Vector(80, 121.9, 0)), False)
sketch10.addGeometry(Part.LineSegment(Vector(80, 121.9, 0), Vector(0, 121.9, 0)), False)
sketch10.addGeometry(Part.LineSegment(Vector(0, 121.9, 0), Vector(0, 123.9, 0)), False)
sketch10.addGeometry(Part.LineSegment(Vector(0, 123.9, 0), Vector(80, 123.9, 0)), False)
sketch10.addConstraint(Sketcher.Constraint("Coincident", 0, 2, 1, 1))
sketch10.addConstraint(Sketcher.Constraint("Coincident", 1, 2, 2, 1))
sketch10.addConstraint(Sketcher.Constraint("Coincident", 2, 2, 3, 1))
sketch10.addConstraint(Sketcher.Constraint("Coincident", 3, 2, 0, 1))
sketch10.addConstraint(Sketcher.Constraint("Vertical", 0))
sketch10.addConstraint(Sketcher.Constraint("Horizontal", 1))
sketch10.addConstraint(Sketcher.Constraint("Vertical", 2))
sketch10.addConstraint(Sketcher.Constraint("Horizontal", 3))
sketch10.addConstraint(Sketcher.Constraint("PointOnObject", 1, 2, -2))
sketch10.addConstraint(Sketcher.Constraint("DistanceX", 1, 2, 1, 1, 80.0))
sketch10.addConstraint(Sketcher.Constraint("DistanceY", 0, 2, 0, 1, 2.0))
sketch10.addConstraint(Sketcher.Constraint("DistanceY", -1, 1, 0, 2, 121.9026))
pad7 = body.newObject("PartDesign::Pad", "Pad006")
pad7.Profile = sketch10
pad7.Length = 30
pad7.Reversed = True

doc.recompute()
